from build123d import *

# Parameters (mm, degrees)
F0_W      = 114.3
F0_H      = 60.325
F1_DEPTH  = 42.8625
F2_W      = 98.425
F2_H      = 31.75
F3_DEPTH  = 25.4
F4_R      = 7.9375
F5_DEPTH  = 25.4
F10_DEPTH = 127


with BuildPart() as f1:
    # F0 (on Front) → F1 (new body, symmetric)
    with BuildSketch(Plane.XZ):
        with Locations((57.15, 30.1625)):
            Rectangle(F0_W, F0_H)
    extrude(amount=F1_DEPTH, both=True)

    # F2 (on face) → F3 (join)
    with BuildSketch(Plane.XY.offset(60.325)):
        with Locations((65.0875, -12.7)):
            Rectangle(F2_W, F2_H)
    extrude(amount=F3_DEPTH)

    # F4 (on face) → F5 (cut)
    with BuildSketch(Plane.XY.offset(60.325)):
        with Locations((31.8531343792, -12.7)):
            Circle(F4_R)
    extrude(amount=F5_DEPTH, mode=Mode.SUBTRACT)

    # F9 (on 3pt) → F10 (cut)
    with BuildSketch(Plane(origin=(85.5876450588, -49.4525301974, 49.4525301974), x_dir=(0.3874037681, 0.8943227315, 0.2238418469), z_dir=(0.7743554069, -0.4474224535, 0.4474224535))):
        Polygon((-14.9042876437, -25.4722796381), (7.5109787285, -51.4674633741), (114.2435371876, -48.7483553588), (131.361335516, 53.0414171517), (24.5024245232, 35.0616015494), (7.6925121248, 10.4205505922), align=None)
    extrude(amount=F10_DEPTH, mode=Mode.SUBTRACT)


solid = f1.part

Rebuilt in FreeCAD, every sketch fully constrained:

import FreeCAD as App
import Part
import Sketcher

V = App.Vector
Q = App.Units.Quantity


def add_polygon(sketch, points):
    """Adds a closed chain of lines whose ends are joined by coincident constraints."""
    first, n = sketch.GeometryCount, len(points)
    for a, b in zip(points, points[1:] + points[:1]):
        sketch.addGeometry(Part.LineSegment(App.Vector(*a, 0), App.Vector(*b, 0)), False)
    for i in range(n):
        sketch.addConstraint(Sketcher.Constraint("Coincident", first + i, 2, first + (i + 1) % n, 1))

doc = App.newDocument("Part")
body = doc.addObject("PartDesign::Body", "Body")

# Sketch on XZ plane
sketch1 = body.newObject("Sketcher::SketchObject", "Sketch")
sketch1.AttachmentSupport = (doc.getObject("XZ_Plane"), [""])
sketch1.MapMode = "FlatFace"
add_polygon(sketch1, [(0, 60), (0, 0), (114, 0), (114, 60)])  # lines 0-3
sketch1.addConstraint(Sketcher.Constraint("Vertical", 0))
sketch1.addConstraint(Sketcher.Constraint("Horizontal", 1))
sketch1.addConstraint(Sketcher.Constraint("Vertical", 2))
sketch1.addConstraint(Sketcher.Constraint("Horizontal", 3))
sketch1.addConstraint(Sketcher.Constraint("Coincident", 0, 2, -1, 1))
sketch1.addConstraint(Sketcher.Constraint("DistanceX", 1, 1, 1, 2, Q("4.5 in")))
sketch1.addConstraint(Sketcher.Constraint("DistanceY", 0, 2, 0, 1, Q("2.375 in")))
pad1 = body.newObject("PartDesign::Pad", "Pad")
pad1.Profile = sketch1
pad1.Length = Q("3.375 in")
pad1.Midplane = True

# Sketch on XY plane
sketch2 = body.newObject("Sketcher::SketchObject", "Sketch001")
sketch2.AttachmentSupport = (doc.getObject("XY_Plane"), [""])
sketch2.MapMode = "FlatFace"
sketch2.AttachmentOffset = App.Placement(V(0, 0, 2.375 * 25.4), App.Rotation())
add_polygon(sketch2, [(16, 3), (16, -29), (114, -29), (114, 3)])  # lines 0-3
sketch2.addConstraint(Sketcher.Constraint("Vertical", 0))
sketch2.addConstraint(Sketcher.Constraint("Horizontal", 1))
sketch2.addConstraint(Sketcher.Constraint("Vertical", 2))
sketch2.addConstraint(Sketcher.Constraint("Horizontal", 3))
sketch2.addConstraint(Sketcher.Constraint("DistanceY", 0, 2, 0, 1, Q("1.25 in")))
sketch2.addConstraint(Sketcher.Constraint("DistanceX", -1, 1, 1, 2, Q("4.5 in")))
sketch2.addConstraint(Sketcher.Constraint("DistanceX", 1, 1, 1, 2, Q("3.875 in")))
sketch2.addConstraint(Sketcher.Constraint("DistanceY", 0, 2, -1, 1, Q("1.125 in")))
pad2 = body.newObject("PartDesign::Pad", "Pad001")
pad2.Profile = sketch2
pad2.Length = Q("1 in")

# Sketch on XY plane
sketch3 = body.newObject("Sketcher::SketchObject", "Sketch002")
sketch3.AttachmentSupport = (doc.getObject("XY_Plane"), [""])
sketch3.MapMode = "FlatFace"
sketch3.AttachmentOffset = App.Placement(V(0, 0, 2.375 * 25.4), App.Rotation())
sketch3.addGeometry(Part.Circle(V(32, -13, 0), V(0, 0, 1), 8), False)
sketch3.addConstraint(Sketcher.Constraint("Diameter", 0, Q("0.625 in")))
sketch3.addConstraint(Sketcher.Constraint("DistanceY", 0, 3, -1, 1, Q("0.5 in")))
sketch3.addConstraint(Sketcher.Constraint("DistanceX", -1, 1, 0, 3, 31.853134))
pocket1 = body.newObject("PartDesign::Pocket", "Pocket")
pocket1.Profile = sketch3
pocket1.Length = Q("1 in")
pocket1.Reversed = True

# Sketch on an angled plane
sketch4 = body.newObject("Sketcher::SketchObject", "Sketch003")
sketch4.Placement = App.Placement(V(85.587645, -49.45253, 49.45253), App.Rotation(V(0.387403768, 0.894322732, 0.223841847), V(-0.50029194, 0, 0.865856788), V(0.774355407, -0.447422454, 0.447422454), "ZXY"))
add_polygon(sketch4, [(-15, -25), (8, -51), (114, -49), (131, 53), (25, 35), (8, 10)])  # lines 0-5
sketch4.addConstraint(Sketcher.Constraint("DistanceY", -1, 1, 3, 2, 35.061602))
sketch4.addConstraint(Sketcher.Constraint("DistanceX", 1, 2, 2, 2, 17.117798))
sketch4.addConstraint(Sketcher.Constraint("DistanceX", 5, 2, 4, 2, 22.5968))
sketch4.addConstraint(Sketcher.Constraint("Distance", 1, 106.767189))
sketch4.addConstraint(Sketcher.Constraint("DistanceX", -1, 1, 0, 2, 7.510979))
sketch4.addConstraint(Sketcher.Constraint("DistanceY", -1, 1, 4, 2, 10.420551))
sketch4.addConstraint(Sketcher.Constraint("DistanceY", 5, 2, -1, 1, 25.47228))
sketch4.addConstraint(Sketcher.Constraint("DistanceX", 0, 2, 1, 2, 106.732559))
sketch4.addConstraint(Sketcher.Constraint("DistanceY", 0, 2, 2, 2, 104.508881))
sketch4.addConstraint(Sketcher.Constraint("DistanceX", 3, 2, 2, 2, 106.858911))
sketch4.addConstraint(Sketcher.Constraint("Distance", 0, 34.324827))
sketch4.addConstraint(Sketcher.Constraint("Distance", 3, 108.360974))
pocket2 = body.newObject("PartDesign::Pocket", "Pocket001")
pocket2.Profile = sketch4
pocket2.Length = Q("5 in")
pocket2.Reversed = True

doc.recompute()
